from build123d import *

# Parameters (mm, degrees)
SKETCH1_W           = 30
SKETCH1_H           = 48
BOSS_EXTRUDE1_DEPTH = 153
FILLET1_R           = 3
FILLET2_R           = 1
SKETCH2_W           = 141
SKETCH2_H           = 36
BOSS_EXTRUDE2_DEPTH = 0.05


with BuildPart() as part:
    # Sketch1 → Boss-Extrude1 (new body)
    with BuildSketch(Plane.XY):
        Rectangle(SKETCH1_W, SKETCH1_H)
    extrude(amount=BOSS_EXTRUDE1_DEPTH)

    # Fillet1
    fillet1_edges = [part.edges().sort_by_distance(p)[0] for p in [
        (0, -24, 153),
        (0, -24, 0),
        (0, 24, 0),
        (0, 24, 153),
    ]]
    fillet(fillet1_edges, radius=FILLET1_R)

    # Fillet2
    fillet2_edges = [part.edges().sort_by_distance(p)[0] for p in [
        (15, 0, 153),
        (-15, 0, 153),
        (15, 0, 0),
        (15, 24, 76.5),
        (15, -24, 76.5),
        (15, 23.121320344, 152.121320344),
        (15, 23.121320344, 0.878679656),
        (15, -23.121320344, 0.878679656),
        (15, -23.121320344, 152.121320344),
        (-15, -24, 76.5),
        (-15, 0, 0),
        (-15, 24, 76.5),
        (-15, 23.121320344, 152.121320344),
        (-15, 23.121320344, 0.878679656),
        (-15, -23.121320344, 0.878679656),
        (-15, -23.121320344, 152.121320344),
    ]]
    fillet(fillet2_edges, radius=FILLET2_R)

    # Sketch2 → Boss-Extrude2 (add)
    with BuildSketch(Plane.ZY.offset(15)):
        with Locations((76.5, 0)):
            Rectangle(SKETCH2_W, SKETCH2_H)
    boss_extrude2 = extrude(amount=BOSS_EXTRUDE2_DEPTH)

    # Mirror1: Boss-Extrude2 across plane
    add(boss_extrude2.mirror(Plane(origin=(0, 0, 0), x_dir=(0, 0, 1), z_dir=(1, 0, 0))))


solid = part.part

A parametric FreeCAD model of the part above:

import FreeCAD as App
import Part
import Sketcher
Q = App.Units.Quantity


def edges_at(feature, points):
    """Names of the edges that pass closest to the given points."""
    edges = feature.Shape.Edges
    near = lambda p: min(range(len(edges)), key=lambda i: edges[i].distToShape(Part.Vertex(*p))[0])
    return sorted({f"Edge{near(p) + 1}" for p in points})

doc = App.newDocument("Part")
body = doc.addObject("PartDesign::Body", "Body")

# Sketch on XY plane
sketch1 = doc.addObject("Sketcher::SketchObject", "Sketch")
body.addObject(sketch1)
sketch1.AttachmentSupport = (doc.XY_Plane, [""])
sketch1.MapMode = "FlatFace"
sketch1.addGeometry([
    Part.LineSegment(App.Vector(-15, 24, 0), App.Vector(-15, -24, 0)),
    Part.LineSegment(App.Vector(-15, -24, 0), App.Vector(15, -24, 0)),
    Part.LineSegment(App.Vector(15, -24, 0), App.Vector(15, 24, 0)),
    Part.LineSegment(App.Vector(15, 24, 0), App.Vector(-15, 24, 0)),
], False)
sketch1.addConstraint([
    Sketcher.Constraint("Coincident", 0, 2, 1, 1),
    Sketcher.Constraint("Coincident", 1, 2, 2, 1),
    Sketcher.Constraint("Coincident", 2, 2, 3, 1),
    Sketcher.Constraint("Coincident", 3, 2, 0, 1),
    Sketcher.Constraint("Vertical", 0),
    Sketcher.Constraint("Horizontal", 1),
    Sketcher.Constraint("Vertical", 2),
    Sketcher.Constraint("Horizontal", 3),
    Sketcher.Constraint("Symmetric", 0, 2, 2, 2, -1, 1),
    Sketcher.Constraint("DistanceX", 1, 1, 1, 2, Q("30 mm")),
    Sketcher.Constraint("DistanceY", 0, 2, 0, 1, Q("48 mm")),
])
pad1 = doc.addObject("PartDesign::Pad", "Pad")
body.addObject(pad1)
pad1.Profile = sketch1
pad1.Length = 153
doc.recompute()

fillet = doc.addObject("PartDesign::Fillet", "Fillet")
body.addObject(fillet)
fillet.Base = (pad1, edges_at(pad1, [
    (0, -24, 153),
    (0, -24, 0),
    (0, 24, 0),
    (0, 24, 153),
]))
fillet.Radius = 3
doc.recompute()

fillet2 = doc.addObject("PartDesign::Fillet", "Fillet001")
body.addObject(fillet2)
fillet2.Base = (fillet, edges_at(fillet, [
    (15, 0, 153),
    (-15, 0, 153),
    (15, 0, 0),
    (15, 24, 76.5),
    (15, -24, 76.5),
    (15, 23.121, 152.121),
    (15, 23.121, 0.879),
    (15, -23.121, 0.879),
    (15, -23.121, 152.121),
    (-15, -24, 76.5),
    (-15, 0, 0),
    (-15, 24, 76.5),
    (-15, 23.121, 152.121),
    (-15, 23.121, 0.879),
    (-15, -23.121, 0.879),
    (-15, -23.121, 152.121),
]))
fillet2.Radius = 1

# Sketch on YZ plane
sketch2 = doc.addObject("Sketcher::SketchObject", "Sketch001")
body.addObject(sketch2)
sketch2.AttachmentSupport = (doc.YZ_Plane, [""])
sketch2.MapMode = "FlatFace"
sketch2.AttachmentOffset = App.Placement(App.Vector(0, 0, -15), App.Rotation())
sketch2.addGeometry([
    Part.LineSegment(App.Vector(18, 6, 0), App.Vector(-18, 6, 0)),
    Part.LineSegment(App.Vector(-18, 6, 0), App.Vector(-18, 147, 0)),
    Part.LineSegment(App.Vector(-18, 147, 0), App.Vector(18, 147, 0)),
    Part.LineSegment(App.Vector(18, 147, 0), App.Vector(18, 6, 0)),
], False)
sketch2.addConstraint([
    Sketcher.Constraint("Coincident", 0, 2, 1, 1),
    Sketcher.Constraint("Coincident", 1, 2, 2, 1),
    Sketcher.Constraint("Coincident", 2, 2, 3, 1),
    Sketcher.Constraint("Coincident", 3, 2, 0, 1),
    Sketcher.Constraint("Horizontal", 0),
    Sketcher.Constraint("Vertical", 1),
    Sketcher.Constraint("Horizontal", 2),
    Sketcher.Constraint("Vertical", 3),
    Sketcher.Constraint("DistanceX", 0, 2, 0, 1, Q("36 mm")),
    Sketcher.Constraint("DistanceY", 1, 1, 1, 2, Q("141 mm")),
    Sketcher.Constraint("DistanceX", 0, 2, -1, 1, Q("18 mm")),
    Sketcher.Constraint("DistanceY", -1, 1, 0, 2, Q("6 mm")),
])
pad2 = doc.addObject("PartDesign::Pad", "Pad001")
body.addObject(pad2)
pad2.Profile = sketch2
pad2.Length = 0.05
pad2.Reversed = True
doc.recompute()

mirrored = doc.addObject("PartDesign::Mirrored", "Mirrored")
body.addObject(mirrored)
mirrored.Originals = [pad2]
mirrored.MirrorPlane = (doc.YZ_Plane, [""])
body.Tip = mirrored

doc.recompute()
